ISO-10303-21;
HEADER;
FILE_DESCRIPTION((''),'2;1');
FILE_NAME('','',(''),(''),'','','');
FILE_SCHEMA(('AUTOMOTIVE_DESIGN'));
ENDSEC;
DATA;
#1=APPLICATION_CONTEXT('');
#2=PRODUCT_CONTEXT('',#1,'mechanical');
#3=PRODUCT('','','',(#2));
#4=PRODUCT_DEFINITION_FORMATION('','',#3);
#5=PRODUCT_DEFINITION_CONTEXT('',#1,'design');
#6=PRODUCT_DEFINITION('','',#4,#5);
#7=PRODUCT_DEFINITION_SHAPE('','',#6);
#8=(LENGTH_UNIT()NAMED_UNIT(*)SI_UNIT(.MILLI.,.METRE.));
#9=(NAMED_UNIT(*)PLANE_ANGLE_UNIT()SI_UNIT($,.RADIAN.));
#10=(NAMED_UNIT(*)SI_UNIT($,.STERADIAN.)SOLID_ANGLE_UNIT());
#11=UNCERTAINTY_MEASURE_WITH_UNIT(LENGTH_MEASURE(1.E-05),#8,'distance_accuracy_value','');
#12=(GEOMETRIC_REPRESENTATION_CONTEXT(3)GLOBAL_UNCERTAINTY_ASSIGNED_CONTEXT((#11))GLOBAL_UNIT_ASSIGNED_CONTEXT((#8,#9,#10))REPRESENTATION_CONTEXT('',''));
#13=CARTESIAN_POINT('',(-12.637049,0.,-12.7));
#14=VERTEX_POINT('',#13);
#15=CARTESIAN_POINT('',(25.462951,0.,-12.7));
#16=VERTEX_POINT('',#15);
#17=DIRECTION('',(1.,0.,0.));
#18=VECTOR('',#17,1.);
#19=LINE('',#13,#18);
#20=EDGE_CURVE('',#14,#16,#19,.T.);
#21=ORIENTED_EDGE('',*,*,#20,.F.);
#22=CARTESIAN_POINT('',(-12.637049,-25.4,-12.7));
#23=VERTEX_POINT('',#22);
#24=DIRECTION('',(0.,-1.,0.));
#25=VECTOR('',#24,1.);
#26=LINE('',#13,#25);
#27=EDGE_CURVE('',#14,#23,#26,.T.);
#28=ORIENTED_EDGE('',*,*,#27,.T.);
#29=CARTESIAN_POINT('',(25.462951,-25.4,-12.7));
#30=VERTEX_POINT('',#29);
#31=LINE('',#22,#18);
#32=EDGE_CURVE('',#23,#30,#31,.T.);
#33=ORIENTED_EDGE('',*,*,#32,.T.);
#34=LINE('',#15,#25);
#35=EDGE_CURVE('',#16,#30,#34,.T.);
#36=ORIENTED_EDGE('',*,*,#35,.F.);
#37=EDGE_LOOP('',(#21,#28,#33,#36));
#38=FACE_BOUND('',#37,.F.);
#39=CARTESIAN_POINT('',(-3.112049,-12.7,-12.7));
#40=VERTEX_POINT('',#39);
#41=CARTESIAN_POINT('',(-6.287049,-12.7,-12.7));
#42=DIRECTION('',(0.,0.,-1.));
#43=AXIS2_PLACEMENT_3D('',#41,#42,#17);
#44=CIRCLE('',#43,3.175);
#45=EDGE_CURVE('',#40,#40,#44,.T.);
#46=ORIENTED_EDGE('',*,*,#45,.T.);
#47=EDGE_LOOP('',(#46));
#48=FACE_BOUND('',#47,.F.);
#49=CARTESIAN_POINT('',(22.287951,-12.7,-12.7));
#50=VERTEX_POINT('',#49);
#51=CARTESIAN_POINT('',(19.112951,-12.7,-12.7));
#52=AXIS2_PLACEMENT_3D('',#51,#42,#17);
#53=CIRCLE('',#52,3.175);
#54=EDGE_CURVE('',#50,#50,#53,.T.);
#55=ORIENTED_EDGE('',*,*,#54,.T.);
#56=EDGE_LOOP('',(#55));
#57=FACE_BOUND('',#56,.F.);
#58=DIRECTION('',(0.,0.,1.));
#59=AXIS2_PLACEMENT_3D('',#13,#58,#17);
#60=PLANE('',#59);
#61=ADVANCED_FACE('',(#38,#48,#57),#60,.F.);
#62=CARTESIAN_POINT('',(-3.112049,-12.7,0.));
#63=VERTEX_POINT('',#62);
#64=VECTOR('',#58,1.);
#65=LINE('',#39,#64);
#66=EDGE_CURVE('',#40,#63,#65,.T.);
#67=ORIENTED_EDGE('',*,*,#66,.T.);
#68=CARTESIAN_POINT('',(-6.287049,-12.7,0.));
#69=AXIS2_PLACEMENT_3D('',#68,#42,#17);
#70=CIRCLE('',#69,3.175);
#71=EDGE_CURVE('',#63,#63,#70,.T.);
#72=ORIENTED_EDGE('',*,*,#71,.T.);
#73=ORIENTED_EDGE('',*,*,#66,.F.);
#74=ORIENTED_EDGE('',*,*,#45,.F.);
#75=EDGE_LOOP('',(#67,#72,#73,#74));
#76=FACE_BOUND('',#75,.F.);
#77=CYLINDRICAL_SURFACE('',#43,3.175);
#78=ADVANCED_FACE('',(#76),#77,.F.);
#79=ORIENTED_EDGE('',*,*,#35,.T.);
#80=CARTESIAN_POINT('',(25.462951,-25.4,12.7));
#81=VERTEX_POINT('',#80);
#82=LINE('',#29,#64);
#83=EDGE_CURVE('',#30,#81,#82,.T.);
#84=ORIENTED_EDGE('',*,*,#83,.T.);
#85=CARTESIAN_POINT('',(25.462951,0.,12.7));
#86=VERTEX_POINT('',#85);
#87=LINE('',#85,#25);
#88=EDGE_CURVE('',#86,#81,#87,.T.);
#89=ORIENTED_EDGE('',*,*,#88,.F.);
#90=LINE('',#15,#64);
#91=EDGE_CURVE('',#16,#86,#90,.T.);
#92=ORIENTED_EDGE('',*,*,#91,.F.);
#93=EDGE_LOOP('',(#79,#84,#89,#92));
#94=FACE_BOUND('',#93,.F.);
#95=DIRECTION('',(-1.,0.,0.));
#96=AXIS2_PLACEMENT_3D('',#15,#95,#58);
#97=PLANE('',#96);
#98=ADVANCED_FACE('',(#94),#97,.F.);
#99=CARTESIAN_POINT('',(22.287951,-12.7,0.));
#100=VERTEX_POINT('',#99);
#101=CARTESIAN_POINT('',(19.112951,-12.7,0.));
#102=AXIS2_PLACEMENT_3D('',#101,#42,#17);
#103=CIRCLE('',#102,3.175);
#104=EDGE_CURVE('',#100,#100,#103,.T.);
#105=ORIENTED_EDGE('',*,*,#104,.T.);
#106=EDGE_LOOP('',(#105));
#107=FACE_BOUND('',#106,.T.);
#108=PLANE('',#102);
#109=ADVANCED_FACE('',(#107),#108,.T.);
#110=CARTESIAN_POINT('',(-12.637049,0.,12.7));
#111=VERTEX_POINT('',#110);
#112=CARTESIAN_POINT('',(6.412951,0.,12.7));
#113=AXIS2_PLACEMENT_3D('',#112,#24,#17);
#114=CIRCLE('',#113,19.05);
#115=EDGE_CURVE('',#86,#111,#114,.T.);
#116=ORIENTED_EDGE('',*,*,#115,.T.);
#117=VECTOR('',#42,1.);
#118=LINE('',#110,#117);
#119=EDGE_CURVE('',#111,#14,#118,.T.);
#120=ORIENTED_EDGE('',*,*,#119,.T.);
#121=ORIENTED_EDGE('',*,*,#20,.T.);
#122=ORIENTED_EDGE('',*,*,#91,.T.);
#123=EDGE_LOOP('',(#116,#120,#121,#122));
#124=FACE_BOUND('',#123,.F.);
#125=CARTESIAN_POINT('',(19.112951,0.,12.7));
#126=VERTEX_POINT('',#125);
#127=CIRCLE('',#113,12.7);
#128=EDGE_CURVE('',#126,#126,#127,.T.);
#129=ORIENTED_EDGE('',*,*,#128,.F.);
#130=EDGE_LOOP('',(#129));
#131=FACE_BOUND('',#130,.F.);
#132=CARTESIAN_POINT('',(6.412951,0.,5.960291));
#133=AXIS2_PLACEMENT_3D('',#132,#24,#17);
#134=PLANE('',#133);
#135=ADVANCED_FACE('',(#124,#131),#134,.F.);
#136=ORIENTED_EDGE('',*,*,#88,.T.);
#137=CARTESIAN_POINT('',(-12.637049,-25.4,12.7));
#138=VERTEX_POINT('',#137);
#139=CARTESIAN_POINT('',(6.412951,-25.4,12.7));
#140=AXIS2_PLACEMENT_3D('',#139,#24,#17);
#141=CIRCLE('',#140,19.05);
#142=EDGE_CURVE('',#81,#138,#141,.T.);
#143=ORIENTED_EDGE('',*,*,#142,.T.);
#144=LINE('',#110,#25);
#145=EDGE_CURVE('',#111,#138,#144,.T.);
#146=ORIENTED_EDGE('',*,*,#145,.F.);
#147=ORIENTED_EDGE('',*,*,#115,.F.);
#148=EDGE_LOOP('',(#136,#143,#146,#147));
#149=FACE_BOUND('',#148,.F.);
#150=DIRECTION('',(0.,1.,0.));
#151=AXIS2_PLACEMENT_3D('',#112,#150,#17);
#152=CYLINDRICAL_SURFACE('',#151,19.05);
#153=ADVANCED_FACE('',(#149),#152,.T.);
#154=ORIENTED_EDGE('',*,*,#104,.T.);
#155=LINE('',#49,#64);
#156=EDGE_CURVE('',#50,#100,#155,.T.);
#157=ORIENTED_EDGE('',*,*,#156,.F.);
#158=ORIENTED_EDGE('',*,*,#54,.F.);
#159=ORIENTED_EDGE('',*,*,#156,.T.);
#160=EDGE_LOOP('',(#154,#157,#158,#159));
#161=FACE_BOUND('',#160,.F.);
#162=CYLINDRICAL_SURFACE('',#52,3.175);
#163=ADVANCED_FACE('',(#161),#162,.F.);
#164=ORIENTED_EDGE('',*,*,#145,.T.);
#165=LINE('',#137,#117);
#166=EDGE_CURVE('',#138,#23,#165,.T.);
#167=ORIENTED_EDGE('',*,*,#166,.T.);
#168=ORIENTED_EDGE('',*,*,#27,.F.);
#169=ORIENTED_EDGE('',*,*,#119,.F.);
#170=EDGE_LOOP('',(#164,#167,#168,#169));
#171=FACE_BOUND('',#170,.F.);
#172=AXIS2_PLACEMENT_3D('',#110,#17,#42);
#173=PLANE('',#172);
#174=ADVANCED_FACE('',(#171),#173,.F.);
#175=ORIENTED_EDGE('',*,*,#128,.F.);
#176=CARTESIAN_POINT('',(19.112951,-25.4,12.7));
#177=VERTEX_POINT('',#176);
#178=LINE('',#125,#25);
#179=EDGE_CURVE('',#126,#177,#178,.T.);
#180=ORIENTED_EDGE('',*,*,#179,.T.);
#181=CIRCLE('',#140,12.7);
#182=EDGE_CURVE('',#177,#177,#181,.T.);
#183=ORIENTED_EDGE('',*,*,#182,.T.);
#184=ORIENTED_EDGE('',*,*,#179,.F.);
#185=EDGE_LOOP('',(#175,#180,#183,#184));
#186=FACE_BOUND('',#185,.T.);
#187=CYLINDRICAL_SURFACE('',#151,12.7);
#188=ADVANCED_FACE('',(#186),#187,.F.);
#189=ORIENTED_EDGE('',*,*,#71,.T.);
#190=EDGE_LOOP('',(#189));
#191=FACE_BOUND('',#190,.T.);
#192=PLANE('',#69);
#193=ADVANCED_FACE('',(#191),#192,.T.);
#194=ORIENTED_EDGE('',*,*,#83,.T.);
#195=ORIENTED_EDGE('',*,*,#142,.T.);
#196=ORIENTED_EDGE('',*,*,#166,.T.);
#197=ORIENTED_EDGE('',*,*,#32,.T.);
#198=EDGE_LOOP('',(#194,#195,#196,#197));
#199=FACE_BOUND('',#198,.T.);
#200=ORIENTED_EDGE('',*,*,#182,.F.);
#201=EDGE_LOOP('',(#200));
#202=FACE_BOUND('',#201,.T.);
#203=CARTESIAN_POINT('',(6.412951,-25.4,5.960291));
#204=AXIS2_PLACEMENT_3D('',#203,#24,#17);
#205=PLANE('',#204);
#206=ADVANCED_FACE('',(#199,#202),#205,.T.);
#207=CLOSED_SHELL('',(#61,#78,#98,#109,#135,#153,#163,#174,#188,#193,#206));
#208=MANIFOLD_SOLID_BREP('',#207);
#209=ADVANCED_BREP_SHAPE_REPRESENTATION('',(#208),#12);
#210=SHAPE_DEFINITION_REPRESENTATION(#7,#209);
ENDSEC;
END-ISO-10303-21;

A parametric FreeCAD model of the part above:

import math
import FreeCAD as App
import Part
import Sketcher

V = App.Vector
Q = App.Units.Quantity

doc = App.newDocument("Part")
body = doc.addObject("PartDesign::Body", "Body")

sketch1 = doc.addObject("Sketcher::SketchObject", "Sketch")
body.addObject(sketch1)
sketch1.AttachmentSupport = (doc.XZ_Plane, [""])
sketch1.MapMode = "FlatFace"
sketch1.addGeometry([
    Part.LineSegment(V(-13, 13, 0), V(-13, -13, 0)),
    Part.LineSegment(V(-13, -13, 0), V(25, -13, 0)),
    Part.LineSegment(V(25, -13, 0), V(25, 13, 0)),
    Part.ArcOfCircle(Part.Circle(V(6, 13, 0), V(0, 0, 1), 19), math.radians(0), math.radians(180)),
    Part.Circle(V(6, 13, 0), V(0, 0, 1), 13),
], False)
sketch1.addConstraint([
    Sketcher.Constraint("Coincident", 0, 2, 1, 1),
    Sketcher.Constraint("Coincident", 1, 2, 2, 1),
    Sketcher.Constraint("Tangent", 2, 2, 3, 1),
    Sketcher.Constraint("Tangent", 3, 2, 0, 1),
    Sketcher.Constraint("Vertical", 0),
    Sketcher.Constraint("Horizontal", 1),
    Sketcher.Constraint("Vertical", 2),
    Sketcher.Constraint("Coincident", 4, 3, 3, 3),
    Sketcher.Constraint("Diameter", 4, Q("1 in")),
    Sketcher.Constraint("DistanceY", 0, 2, 0, 1, Q("1 in")),
    Sketcher.Constraint("Radius", 3, Q("0.75 in")),
    Sketcher.Constraint("DistanceY", -1, 1, 3, 3, Q("0.5 in")),
    Sketcher.Constraint("DistanceX", -1, 1, 3, 3, 6.412951),
])
pad1 = doc.addObject("PartDesign::Pad", "Pad")
body.addObject(pad1)
pad1.Profile = sketch1
pad1.Length = Q("1 in")

sketch2 = doc.addObject("Sketcher::SketchObject", "Sketch001")
body.addObject(sketch2)
sketch2.AttachmentSupport = (doc.XY_Plane, [""])
sketch2.MapMode = "FlatFace"
sketch2.AttachmentOffset = App.Placement(V(0, 0, -0.5 * 25.4), App.Rotation())
sketch2.addGeometry([
    Part.Circle(V(-6.3, -12.7, 0), V(0, 0, 1), 3.2),
    Part.Circle(V(19.1, -12.7, 0), V(0, 0, 1), 3.2),
], False)
sketch2.addConstraint([
    Sketcher.Constraint("Equal", 0, 1),
    Sketcher.Constraint("Horizontal", 0, 3, 1, 3),
    Sketcher.Constraint("Diameter", 0, Q("0.25 in")),
    Sketcher.Constraint("DistanceX", 0, 3, 1, 3, Q("1 in")),
    Sketcher.Constraint("DistanceY", 0, 3, -1, 1, Q("0.5 in")),
    Sketcher.Constraint("DistanceX", 0, 3, -1, 1, 6.287049),
])
pocket1 = doc.addObject("PartDesign::Pocket", "Pocket")
body.addObject(pocket1)
pocket1.Profile = sketch2
pocket1.Length = Q("0.5 in")
pocket1.Reversed = True

doc.recompute()
